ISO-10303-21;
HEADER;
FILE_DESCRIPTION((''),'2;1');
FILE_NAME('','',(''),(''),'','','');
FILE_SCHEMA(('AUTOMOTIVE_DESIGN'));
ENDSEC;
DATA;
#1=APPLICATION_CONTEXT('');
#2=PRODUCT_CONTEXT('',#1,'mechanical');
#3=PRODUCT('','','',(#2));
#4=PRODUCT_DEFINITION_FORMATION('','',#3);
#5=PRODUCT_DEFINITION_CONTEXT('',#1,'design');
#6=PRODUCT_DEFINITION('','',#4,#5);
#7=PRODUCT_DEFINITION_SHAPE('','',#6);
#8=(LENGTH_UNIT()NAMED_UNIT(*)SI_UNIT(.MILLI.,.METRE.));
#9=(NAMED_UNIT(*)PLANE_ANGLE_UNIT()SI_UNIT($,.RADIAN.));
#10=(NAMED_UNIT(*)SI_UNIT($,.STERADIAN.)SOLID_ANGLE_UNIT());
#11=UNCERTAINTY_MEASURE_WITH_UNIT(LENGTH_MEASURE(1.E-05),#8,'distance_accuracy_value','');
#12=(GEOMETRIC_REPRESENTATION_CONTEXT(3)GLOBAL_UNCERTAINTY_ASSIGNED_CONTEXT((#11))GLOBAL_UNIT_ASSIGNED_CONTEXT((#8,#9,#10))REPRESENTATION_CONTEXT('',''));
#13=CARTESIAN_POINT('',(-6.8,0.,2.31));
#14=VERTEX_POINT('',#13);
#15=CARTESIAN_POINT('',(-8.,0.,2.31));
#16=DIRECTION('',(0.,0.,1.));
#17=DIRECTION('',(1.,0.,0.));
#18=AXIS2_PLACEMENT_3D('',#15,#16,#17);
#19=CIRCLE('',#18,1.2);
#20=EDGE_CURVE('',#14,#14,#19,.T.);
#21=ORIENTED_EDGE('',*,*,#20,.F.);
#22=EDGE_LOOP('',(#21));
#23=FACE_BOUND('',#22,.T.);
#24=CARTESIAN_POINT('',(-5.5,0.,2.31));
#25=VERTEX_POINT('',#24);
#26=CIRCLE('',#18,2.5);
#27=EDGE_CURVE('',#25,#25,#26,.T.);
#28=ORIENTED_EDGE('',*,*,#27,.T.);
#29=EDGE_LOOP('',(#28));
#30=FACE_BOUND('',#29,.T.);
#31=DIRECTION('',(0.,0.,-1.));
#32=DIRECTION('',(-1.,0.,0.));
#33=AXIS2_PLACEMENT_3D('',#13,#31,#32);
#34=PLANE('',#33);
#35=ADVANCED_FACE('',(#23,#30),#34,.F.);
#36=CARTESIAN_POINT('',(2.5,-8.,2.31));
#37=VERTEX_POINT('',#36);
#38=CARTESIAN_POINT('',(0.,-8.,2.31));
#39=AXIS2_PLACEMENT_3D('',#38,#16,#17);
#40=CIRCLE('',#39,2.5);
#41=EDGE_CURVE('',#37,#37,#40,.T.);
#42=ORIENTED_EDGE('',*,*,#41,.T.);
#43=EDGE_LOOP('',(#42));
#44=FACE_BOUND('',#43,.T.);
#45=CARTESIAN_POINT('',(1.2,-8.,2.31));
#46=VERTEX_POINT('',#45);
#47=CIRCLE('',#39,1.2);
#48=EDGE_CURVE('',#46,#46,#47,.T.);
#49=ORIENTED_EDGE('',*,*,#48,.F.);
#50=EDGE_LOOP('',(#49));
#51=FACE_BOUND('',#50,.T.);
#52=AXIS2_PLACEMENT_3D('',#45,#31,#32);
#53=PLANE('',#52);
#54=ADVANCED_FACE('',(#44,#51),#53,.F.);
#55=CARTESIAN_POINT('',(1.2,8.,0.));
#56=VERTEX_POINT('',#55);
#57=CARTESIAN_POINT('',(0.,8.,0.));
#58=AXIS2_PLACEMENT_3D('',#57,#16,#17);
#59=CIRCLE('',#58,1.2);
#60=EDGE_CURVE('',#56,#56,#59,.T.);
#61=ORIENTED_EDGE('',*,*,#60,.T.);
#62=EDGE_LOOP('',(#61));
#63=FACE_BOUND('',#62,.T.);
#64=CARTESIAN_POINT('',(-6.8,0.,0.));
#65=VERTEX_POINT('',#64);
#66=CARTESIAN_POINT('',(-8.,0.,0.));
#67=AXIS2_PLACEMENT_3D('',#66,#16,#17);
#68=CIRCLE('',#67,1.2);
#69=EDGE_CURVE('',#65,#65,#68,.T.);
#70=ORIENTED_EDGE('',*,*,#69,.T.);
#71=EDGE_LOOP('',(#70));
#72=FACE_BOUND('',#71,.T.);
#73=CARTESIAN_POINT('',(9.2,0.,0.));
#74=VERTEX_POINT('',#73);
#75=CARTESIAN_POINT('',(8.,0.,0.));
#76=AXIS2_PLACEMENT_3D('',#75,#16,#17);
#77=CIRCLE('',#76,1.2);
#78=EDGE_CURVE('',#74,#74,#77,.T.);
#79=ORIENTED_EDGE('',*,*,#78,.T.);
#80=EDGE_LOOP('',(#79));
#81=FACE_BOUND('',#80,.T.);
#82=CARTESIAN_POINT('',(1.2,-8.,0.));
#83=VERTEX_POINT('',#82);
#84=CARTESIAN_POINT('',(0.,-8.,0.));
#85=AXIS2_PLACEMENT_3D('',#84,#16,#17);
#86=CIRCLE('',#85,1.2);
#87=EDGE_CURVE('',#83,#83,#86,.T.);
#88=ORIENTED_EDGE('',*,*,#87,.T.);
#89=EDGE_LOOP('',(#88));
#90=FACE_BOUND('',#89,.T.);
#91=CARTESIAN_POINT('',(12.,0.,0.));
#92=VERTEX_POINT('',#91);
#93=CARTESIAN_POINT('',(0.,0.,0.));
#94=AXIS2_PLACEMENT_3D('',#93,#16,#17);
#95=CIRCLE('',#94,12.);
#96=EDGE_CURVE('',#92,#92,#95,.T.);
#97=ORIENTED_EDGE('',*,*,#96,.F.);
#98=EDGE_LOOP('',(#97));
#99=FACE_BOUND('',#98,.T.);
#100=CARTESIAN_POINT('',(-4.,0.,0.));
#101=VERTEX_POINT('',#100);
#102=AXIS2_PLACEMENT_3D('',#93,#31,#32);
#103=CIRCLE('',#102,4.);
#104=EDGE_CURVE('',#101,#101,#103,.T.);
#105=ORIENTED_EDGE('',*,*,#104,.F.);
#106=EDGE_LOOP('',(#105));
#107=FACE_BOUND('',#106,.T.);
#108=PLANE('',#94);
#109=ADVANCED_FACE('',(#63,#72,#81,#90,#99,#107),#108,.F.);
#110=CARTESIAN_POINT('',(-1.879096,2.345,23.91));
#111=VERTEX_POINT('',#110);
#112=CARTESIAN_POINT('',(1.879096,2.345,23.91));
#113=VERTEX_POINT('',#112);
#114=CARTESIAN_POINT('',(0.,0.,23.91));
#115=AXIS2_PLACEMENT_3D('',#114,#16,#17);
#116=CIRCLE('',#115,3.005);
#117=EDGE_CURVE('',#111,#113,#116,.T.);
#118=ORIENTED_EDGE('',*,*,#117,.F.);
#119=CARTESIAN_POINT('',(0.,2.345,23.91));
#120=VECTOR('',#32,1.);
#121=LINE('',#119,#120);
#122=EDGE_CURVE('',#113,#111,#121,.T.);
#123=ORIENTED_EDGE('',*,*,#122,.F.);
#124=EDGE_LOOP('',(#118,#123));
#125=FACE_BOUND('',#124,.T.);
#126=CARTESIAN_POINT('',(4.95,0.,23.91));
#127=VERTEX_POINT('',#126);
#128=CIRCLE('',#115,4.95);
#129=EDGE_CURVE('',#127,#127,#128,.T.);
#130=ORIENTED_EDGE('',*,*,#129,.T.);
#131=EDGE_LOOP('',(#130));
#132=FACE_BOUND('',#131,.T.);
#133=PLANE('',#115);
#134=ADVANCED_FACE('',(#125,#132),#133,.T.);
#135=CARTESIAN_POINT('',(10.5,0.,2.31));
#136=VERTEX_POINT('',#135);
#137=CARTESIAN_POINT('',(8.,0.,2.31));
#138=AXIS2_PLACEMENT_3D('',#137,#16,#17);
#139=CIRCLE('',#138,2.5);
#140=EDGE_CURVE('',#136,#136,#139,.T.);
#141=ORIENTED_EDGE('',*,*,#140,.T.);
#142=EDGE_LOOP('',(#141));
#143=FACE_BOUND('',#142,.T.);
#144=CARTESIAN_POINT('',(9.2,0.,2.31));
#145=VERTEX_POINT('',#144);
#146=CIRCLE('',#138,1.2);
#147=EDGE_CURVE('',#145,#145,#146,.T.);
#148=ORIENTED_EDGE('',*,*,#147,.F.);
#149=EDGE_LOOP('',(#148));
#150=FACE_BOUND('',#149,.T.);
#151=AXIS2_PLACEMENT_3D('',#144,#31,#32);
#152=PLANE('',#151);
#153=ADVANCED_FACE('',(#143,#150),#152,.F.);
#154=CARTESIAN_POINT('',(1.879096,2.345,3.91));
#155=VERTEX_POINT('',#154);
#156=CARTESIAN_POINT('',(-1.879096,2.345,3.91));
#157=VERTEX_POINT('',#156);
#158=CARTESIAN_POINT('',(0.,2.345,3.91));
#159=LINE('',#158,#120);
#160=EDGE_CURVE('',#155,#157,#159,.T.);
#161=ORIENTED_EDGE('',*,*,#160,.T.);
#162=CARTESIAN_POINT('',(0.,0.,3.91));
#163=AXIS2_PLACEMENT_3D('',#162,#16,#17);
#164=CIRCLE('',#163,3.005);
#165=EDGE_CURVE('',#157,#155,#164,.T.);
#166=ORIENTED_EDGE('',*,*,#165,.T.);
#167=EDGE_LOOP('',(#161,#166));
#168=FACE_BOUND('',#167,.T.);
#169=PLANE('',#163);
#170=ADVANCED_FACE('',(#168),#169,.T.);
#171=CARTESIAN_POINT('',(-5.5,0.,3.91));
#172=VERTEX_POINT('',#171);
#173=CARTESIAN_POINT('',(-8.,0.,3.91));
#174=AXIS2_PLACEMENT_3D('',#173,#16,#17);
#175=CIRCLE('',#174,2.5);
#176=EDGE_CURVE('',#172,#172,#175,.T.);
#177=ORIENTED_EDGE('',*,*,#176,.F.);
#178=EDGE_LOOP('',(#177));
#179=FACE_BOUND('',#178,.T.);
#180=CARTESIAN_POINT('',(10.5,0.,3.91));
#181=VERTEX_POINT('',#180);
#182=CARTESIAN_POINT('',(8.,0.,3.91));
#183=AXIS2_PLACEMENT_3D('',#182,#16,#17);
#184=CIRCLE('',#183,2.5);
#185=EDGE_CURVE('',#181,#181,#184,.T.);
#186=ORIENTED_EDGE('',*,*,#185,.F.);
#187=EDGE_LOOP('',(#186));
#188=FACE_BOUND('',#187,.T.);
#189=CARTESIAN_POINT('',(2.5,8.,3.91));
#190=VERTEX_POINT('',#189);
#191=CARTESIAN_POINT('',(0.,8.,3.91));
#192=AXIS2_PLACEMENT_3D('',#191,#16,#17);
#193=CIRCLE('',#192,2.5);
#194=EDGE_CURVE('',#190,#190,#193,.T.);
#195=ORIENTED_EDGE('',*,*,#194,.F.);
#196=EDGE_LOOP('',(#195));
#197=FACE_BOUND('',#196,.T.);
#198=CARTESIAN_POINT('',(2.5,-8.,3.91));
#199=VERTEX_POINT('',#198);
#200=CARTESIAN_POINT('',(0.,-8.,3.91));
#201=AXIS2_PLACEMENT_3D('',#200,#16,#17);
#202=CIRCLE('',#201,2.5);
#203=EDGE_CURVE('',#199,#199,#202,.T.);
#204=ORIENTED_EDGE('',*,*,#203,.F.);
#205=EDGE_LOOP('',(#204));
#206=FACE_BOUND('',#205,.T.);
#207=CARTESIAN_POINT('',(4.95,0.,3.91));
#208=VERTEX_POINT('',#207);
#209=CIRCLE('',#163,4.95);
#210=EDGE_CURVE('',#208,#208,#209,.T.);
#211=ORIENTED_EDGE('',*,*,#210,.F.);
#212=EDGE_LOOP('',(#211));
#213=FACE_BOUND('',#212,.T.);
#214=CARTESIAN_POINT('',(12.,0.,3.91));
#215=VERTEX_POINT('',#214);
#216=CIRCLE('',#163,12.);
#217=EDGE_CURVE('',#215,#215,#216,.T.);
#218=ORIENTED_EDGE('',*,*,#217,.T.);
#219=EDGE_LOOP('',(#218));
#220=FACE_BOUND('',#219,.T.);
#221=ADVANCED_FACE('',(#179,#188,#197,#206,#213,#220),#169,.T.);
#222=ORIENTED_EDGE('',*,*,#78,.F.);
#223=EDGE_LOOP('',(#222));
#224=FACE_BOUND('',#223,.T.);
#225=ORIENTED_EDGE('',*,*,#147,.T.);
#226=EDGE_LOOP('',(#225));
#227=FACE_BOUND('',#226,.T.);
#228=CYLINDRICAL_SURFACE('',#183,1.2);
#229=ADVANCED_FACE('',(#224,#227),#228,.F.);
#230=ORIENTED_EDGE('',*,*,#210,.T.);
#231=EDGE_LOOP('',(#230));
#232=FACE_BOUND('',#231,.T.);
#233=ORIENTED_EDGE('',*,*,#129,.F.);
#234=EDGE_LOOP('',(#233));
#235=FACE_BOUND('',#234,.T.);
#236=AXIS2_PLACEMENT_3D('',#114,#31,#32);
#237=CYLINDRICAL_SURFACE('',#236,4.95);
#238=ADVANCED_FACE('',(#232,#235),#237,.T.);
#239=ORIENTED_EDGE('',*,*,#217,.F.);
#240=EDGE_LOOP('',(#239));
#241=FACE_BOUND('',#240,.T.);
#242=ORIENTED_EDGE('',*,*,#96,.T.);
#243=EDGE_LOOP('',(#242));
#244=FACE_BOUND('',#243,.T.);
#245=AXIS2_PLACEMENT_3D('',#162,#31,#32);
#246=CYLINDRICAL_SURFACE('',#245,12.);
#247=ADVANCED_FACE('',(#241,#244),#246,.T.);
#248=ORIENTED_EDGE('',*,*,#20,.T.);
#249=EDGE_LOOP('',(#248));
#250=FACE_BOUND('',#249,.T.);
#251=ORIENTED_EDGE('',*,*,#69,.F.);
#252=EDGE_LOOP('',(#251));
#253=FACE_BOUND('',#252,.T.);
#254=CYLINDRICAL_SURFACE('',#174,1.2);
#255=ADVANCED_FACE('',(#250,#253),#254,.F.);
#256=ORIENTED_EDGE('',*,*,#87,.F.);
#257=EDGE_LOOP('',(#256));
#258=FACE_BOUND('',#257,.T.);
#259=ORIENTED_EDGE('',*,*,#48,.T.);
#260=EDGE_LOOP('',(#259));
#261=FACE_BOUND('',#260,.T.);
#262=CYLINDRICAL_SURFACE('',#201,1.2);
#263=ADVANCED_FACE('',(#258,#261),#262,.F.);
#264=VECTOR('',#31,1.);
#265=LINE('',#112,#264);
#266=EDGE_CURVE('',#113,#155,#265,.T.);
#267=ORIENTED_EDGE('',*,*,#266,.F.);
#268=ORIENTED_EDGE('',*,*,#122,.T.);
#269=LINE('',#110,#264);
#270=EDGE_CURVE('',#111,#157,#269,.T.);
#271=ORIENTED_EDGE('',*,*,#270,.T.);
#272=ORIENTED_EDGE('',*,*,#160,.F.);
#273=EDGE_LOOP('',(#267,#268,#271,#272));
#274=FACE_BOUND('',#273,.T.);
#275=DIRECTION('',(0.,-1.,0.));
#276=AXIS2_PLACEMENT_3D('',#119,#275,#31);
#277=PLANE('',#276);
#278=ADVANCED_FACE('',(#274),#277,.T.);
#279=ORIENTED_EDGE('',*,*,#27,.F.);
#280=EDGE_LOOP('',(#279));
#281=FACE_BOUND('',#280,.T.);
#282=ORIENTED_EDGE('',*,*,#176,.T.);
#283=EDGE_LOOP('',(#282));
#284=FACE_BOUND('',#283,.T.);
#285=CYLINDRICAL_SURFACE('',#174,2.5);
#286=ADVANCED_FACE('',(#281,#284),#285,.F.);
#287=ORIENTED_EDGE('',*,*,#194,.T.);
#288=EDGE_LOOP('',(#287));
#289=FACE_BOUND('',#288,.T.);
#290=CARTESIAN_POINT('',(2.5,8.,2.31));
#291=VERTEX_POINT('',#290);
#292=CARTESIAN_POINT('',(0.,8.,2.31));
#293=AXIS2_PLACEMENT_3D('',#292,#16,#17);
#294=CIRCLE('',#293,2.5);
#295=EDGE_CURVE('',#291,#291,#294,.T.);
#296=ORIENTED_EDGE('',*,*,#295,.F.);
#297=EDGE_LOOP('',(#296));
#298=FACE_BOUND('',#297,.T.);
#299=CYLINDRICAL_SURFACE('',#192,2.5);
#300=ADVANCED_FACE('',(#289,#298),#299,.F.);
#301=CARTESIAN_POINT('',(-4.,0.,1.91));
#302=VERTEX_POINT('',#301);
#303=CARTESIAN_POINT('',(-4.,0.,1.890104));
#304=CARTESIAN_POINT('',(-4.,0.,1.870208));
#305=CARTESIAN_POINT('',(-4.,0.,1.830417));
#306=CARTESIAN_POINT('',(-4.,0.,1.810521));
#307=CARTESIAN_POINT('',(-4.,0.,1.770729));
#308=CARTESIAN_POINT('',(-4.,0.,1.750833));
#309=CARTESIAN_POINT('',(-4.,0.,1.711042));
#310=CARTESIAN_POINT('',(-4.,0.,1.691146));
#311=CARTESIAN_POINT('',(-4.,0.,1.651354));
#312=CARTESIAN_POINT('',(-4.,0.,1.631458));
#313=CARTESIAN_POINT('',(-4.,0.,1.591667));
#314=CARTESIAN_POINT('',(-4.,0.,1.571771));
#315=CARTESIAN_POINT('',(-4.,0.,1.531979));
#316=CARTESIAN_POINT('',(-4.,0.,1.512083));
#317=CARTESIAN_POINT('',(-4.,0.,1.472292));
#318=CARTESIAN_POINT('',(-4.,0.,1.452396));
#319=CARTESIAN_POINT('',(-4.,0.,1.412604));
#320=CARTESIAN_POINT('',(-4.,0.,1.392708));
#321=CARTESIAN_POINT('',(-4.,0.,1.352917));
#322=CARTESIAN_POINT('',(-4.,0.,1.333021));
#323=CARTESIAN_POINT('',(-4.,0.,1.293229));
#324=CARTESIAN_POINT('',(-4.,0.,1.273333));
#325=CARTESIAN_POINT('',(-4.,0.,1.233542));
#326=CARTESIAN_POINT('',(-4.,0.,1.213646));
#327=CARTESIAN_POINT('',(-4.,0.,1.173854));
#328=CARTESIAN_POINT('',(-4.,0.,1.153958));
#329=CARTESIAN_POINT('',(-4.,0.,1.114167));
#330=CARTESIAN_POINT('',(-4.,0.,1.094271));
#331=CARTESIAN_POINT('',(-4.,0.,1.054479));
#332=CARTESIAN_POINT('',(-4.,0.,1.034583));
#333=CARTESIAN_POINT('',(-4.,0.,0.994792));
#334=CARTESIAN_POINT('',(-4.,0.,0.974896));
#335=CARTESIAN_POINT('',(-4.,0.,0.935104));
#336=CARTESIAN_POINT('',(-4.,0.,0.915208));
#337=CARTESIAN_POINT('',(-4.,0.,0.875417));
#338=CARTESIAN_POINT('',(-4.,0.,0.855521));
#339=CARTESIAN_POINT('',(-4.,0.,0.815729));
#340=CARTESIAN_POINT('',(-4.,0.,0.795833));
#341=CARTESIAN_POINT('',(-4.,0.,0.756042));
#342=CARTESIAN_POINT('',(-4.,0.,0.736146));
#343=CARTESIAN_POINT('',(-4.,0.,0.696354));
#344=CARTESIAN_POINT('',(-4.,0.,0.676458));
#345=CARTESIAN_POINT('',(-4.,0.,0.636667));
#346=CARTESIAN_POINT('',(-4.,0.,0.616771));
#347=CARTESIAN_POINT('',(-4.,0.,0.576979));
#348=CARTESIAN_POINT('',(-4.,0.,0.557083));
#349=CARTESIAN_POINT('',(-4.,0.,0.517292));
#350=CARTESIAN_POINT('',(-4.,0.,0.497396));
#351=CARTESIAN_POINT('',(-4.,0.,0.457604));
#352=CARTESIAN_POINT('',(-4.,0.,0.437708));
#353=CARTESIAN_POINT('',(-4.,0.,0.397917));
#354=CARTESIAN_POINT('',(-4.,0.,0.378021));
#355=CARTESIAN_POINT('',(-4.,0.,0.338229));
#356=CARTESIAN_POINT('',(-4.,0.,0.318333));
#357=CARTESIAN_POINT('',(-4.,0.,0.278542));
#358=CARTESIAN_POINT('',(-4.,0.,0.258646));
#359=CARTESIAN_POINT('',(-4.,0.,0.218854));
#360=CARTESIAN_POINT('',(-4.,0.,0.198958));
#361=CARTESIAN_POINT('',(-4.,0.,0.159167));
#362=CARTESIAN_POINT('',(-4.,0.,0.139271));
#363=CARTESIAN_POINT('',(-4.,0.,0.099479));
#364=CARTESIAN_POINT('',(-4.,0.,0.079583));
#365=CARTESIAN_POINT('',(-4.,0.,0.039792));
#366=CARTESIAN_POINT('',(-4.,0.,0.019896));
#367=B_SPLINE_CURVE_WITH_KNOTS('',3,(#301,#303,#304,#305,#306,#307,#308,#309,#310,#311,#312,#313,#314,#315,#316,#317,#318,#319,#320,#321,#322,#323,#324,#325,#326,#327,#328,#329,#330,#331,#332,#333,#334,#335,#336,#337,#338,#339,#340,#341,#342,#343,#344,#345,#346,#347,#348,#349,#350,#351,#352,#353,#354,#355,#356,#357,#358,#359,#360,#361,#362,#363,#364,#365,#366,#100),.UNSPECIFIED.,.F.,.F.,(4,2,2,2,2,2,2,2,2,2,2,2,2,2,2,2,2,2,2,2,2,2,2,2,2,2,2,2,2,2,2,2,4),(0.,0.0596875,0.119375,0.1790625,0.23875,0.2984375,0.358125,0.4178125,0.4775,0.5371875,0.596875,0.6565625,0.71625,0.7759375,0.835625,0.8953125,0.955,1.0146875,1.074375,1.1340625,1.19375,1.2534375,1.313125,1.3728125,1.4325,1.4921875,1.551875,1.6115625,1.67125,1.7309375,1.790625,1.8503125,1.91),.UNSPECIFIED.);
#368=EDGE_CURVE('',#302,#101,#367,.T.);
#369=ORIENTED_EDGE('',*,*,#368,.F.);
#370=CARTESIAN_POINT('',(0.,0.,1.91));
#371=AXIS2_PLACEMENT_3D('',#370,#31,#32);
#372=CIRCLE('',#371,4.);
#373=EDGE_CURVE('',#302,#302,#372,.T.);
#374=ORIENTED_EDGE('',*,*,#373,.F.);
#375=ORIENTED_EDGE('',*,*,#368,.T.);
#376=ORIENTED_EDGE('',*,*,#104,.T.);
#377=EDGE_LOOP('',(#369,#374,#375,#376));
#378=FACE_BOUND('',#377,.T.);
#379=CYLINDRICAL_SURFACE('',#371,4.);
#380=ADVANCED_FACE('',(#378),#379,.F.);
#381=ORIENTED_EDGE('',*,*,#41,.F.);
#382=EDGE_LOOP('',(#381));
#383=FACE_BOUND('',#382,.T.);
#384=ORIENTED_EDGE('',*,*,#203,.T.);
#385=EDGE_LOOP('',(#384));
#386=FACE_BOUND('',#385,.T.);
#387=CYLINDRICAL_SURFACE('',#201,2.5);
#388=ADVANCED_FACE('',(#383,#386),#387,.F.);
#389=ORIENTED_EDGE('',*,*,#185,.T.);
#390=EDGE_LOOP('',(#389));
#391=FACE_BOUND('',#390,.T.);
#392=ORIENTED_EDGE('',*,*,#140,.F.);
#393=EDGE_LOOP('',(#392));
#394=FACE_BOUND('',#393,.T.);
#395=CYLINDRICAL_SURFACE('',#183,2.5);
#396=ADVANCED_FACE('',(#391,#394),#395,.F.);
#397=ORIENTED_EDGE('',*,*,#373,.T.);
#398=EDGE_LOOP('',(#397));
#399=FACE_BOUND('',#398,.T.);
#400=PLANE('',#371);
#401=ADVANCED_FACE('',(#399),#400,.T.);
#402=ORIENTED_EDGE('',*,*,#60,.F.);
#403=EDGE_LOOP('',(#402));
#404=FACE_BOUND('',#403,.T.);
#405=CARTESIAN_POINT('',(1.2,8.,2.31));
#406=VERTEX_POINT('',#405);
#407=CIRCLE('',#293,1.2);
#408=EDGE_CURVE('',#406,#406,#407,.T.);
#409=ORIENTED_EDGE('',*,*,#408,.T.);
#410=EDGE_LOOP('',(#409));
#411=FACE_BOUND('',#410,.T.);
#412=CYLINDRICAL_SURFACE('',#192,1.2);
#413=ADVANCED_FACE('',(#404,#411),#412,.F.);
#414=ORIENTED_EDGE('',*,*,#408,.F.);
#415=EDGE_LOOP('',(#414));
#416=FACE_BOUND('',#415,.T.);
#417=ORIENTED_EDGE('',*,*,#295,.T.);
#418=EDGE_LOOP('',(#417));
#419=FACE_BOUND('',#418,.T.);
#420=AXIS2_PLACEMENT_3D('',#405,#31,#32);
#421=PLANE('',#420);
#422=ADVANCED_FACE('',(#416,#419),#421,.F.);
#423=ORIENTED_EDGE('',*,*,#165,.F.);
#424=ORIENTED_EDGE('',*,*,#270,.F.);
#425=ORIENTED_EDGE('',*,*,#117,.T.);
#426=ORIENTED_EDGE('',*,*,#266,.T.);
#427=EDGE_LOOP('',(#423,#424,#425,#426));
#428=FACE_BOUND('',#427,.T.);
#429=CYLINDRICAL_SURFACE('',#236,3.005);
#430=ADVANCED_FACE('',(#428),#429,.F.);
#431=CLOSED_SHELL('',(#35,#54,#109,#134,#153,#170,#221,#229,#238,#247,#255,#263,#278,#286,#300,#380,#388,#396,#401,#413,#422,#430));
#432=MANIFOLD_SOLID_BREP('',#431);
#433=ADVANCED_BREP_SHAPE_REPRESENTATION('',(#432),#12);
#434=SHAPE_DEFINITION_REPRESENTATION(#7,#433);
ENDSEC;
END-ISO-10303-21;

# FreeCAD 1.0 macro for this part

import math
import FreeCAD as App
import Part
import Sketcher
from FreeCAD import Vector

doc = App.newDocument("Part")
body = doc.addObject("PartDesign::Body", "Body")

sketch1 = body.newObject("Sketcher::SketchObject", "Sketch")
sketch1.AttachmentSupport = (doc.getObject("XY_Plane"), [""])
sketch1.MapMode = "FlatFace"
sketch1.addGeometry(Part.Circle(Vector(0, 0, 0), Vector(0, 0, 1), 12), False)
sketch1.addConstraint([
    Sketcher.Constraint("Coincident", 0, 3, -1, 1),
    Sketcher.Constraint("Diameter", 0, 24.0),
])
pad1 = body.newObject("PartDesign::Pad", "Pad")
pad1.Profile = sketch1
pad1.Length = 3.91

sketch2 = body.newObject("Sketcher::SketchObject", "Sketch001")
sketch2.AttachmentSupport = (doc.getObject("XY_Plane"), [""])
sketch2.MapMode = "FlatFace"
sketch2.addGeometry(Part.Circle(Vector(0, 0, 0), Vector(0, 0, 1), 4), False)
sketch2.addConstraint([
    Sketcher.Constraint("Coincident", 0, 3, -1, 1),
    Sketcher.Constraint("Diameter", 0, 8.0),
])
pocket1 = body.newObject("PartDesign::Pocket", "Pocket")
pocket1.Profile = sketch2
pocket1.Length = 1.91
pocket1.Reversed = True

sketch3 = body.newObject("Sketcher::SketchObject", "Sketch002")
sketch3.AttachmentSupport = (doc.getObject("XY_Plane"), [""])
sketch3.MapMode = "FlatFace"
sketch3.AttachmentOffset = App.Placement(Vector(0, 0, 3.91), App.Rotation())
sketch3.addGeometry([
    Part.Circle(Vector(0, 0, 0), Vector(0, 0, 1), 5),
    Part.LineSegment(Vector(-1.9, 2.3, 0), Vector(1.9, 2.3, 0)),
    Part.ArcOfCircle(Part.Circle(Vector(0, 0, 0), Vector(0, 0, 1), 3), math.radians(129), math.radians(411)),
], False)
sketch3.addConstraint([
    Sketcher.Constraint("Coincident", 1, 1, 2, 1),
    Sketcher.Constraint("Coincident", 2, 2, 1, 2),
    Sketcher.Constraint("Horizontal", 1),
    Sketcher.Constraint("Coincident", 0, 3, -1, 1),
    Sketcher.Constraint("Coincident", 2, 3, -1, 1),
    Sketcher.Constraint("Diameter", 0, 9.9),
    Sketcher.Constraint("Radius", 2, 3.005),
    Sketcher.Constraint("DistanceY", -1, 1, 1, 1, 2.345),
])
pad2 = body.newObject("PartDesign::Pad", "Pad001")
pad2.Profile = sketch3
pad2.Length = 20

sketch4 = body.newObject("Sketcher::SketchObject", "Sketch003")
sketch4.AttachmentSupport = (doc.getObject("XY_Plane"), [""])
sketch4.MapMode = "FlatFace"
sketch4.AttachmentOffset = App.Placement(Vector(0, 0, 3.91), App.Rotation())
sketch4.addGeometry(Part.Circle(Vector(0, 8, 0), Vector(0, 0, 1), 1.2), False)
sketch4.addConstraint([
    Sketcher.Constraint("PointOnObject", 0, 3, -2),
    Sketcher.Constraint("Diameter", 0, 2.4),
    Sketcher.Constraint("DistanceY", -1, 1, 0, 3, 8.0),
])
doc.recompute()
hole = body.newObject("PartDesign::Hole", "Hole")
hole.Profile = sketch4
hole.ThreadType = "None"
hole.Diameter = 2.4
hole.DepthType = "ThroughAll"
hole.HoleCutType = "Counterbore"
hole.HoleCutDiameter = 5
hole.HoleCutDepth = 1.6
doc.recompute()

polarpattern = body.newObject("PartDesign::PolarPattern", "PolarPattern")
polarpattern.Originals = [hole]
polarpattern.Axis = (doc.getObject("Z_Axis"), [""])
polarpattern.Angle = 360
polarpattern.Occurrences = 4
body.Tip = polarpattern

doc.recompute()
